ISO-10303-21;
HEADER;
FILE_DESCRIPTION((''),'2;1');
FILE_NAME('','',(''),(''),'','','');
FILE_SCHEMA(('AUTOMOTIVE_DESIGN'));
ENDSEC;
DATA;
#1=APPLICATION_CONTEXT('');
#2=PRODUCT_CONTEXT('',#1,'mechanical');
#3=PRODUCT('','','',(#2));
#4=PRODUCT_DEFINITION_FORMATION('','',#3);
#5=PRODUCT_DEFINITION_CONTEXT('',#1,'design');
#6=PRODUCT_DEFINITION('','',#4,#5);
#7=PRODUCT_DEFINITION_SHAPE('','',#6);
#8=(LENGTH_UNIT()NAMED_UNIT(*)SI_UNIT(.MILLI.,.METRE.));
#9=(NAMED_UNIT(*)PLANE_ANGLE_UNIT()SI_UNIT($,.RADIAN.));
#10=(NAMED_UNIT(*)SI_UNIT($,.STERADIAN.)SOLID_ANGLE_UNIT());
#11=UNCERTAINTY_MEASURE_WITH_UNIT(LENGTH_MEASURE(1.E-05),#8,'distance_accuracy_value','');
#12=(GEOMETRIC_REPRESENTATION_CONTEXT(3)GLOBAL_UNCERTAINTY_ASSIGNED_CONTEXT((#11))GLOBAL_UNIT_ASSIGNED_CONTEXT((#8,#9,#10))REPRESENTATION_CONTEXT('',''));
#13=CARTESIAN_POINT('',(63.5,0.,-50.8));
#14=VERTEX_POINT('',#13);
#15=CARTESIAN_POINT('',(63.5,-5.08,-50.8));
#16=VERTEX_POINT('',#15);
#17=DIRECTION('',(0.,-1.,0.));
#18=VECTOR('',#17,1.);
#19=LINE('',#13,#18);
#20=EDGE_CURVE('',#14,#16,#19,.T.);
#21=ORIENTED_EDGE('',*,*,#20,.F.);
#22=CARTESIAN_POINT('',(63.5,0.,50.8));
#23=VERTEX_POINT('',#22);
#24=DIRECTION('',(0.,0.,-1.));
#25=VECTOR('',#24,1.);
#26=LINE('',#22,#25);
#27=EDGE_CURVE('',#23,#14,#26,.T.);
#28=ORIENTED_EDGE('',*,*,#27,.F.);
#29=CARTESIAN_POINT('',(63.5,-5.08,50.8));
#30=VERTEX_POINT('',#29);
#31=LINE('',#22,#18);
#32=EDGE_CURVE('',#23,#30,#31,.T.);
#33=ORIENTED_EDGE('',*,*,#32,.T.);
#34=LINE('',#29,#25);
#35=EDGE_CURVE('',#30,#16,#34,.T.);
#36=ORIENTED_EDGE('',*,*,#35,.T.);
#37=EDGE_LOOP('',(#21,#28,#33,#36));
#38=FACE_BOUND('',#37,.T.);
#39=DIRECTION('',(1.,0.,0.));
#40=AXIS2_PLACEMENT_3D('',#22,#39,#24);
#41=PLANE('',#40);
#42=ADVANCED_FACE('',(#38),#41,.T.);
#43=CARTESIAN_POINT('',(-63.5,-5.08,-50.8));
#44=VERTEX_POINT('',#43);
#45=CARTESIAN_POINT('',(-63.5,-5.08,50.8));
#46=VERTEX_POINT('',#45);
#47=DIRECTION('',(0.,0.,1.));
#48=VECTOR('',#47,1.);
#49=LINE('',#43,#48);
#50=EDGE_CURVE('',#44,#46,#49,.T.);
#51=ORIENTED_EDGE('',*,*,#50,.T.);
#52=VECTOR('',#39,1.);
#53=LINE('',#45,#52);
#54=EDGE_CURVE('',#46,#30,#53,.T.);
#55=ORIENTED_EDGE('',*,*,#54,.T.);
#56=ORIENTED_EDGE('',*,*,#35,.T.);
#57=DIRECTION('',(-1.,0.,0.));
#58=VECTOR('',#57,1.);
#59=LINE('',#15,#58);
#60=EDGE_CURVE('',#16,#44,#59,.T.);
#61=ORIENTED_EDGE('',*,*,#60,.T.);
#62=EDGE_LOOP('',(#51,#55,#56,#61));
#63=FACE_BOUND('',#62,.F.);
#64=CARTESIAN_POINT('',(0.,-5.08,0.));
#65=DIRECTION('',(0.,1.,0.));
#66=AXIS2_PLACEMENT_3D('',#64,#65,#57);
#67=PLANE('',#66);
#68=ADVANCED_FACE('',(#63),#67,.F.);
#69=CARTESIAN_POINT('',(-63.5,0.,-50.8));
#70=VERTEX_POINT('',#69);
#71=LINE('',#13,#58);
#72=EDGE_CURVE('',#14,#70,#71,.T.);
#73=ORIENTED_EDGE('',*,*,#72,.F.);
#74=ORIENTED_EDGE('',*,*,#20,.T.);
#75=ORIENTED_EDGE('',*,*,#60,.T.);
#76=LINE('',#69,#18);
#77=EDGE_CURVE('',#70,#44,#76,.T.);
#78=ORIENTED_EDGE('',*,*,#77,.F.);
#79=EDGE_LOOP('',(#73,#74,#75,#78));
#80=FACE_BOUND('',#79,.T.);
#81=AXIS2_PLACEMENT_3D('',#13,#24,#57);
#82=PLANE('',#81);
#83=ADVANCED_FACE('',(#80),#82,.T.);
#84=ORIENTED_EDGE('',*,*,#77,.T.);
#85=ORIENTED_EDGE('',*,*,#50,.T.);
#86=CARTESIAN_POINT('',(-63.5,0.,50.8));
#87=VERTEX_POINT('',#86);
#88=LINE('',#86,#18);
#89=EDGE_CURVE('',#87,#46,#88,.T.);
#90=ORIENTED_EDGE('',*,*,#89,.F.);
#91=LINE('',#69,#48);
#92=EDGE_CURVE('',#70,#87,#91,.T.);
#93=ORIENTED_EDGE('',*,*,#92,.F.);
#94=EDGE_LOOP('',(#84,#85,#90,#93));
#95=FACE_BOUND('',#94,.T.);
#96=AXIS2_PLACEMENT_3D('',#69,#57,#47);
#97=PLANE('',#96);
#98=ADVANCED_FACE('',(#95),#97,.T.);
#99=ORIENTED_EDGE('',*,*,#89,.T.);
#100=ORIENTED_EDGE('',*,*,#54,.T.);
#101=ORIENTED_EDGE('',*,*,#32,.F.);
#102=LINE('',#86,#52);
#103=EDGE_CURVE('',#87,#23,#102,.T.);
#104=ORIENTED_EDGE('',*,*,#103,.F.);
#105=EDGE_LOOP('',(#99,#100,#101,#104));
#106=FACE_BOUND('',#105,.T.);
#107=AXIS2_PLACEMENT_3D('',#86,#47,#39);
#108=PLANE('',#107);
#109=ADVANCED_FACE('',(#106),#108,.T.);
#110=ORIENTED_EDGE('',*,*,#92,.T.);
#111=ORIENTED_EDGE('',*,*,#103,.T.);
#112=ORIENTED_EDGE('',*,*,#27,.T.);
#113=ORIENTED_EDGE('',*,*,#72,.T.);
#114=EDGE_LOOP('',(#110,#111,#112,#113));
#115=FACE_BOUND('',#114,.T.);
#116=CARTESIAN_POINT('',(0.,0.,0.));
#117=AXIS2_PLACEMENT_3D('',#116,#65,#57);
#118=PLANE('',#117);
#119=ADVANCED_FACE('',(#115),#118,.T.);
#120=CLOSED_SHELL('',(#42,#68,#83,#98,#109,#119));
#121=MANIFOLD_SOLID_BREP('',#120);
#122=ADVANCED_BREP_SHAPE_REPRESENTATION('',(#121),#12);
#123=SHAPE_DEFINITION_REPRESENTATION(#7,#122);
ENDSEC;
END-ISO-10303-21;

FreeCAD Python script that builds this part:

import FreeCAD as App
import Part
import Sketcher

V = App.Vector
Q = App.Units.Quantity

doc = App.newDocument("Part")
body = doc.addObject("PartDesign::Body", "Body")

# Sketch on XZ plane
sketch1 = body.newObject("Sketcher::SketchObject", "Sketch")
sketch1.AttachmentSupport = (doc.getObject("XZ_Plane"), [""])
sketch1.MapMode = "FlatFace"
sketch1.addGeometry(Part.LineSegment(V(-64, -51, 0), V(-64, 51, 0)), False)
sketch1.addGeometry(Part.LineSegment(V(-64, 51, 0), V(64, 51, 0)), False)
sketch1.addGeometry(Part.LineSegment(V(64, 51, 0), V(64, -51, 0)), False)
sketch1.addGeometry(Part.LineSegment(V(64, -51, 0), V(-64, -51, 0)), False)
sketch1.addConstraint(Sketcher.Constraint("Coincident", 0, 2, 1, 1))
sketch1.addConstraint(Sketcher.Constraint("Coincident", 1, 2, 2, 1))
sketch1.addConstraint(Sketcher.Constraint("Coincident", 2, 2, 3, 1))
sketch1.addConstraint(Sketcher.Constraint("Coincident", 3, 2, 0, 1))
sketch1.addConstraint(Sketcher.Constraint("Vertical", 0))
sketch1.addConstraint(Sketcher.Constraint("Horizontal", 1))
sketch1.addConstraint(Sketcher.Constraint("Vertical", 2))
sketch1.addConstraint(Sketcher.Constraint("Horizontal", 3))
sketch1.addConstraint(Sketcher.Constraint("Symmetric", 0, 2, 2, 2, -1, 1))
sketch1.addConstraint(Sketcher.Constraint("DistanceX", 1, 1, 1, 2, Q("5 in")))
sketch1.addConstraint(Sketcher.Constraint("DistanceY", 0, 1, 0, 2, Q("4 in")))
pad1 = body.newObject("PartDesign::Pad", "Pad")
pad1.Profile = sketch1
pad1.Length = Q("0.2 in")

doc.recompute()
